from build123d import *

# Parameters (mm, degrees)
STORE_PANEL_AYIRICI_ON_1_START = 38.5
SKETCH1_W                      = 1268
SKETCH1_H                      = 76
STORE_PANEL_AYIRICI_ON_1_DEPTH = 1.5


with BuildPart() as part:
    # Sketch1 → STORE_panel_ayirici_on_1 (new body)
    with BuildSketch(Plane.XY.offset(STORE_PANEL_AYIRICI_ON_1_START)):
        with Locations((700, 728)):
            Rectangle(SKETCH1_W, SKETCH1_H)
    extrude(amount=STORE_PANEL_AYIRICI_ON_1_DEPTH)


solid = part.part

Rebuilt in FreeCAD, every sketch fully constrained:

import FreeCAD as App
import Part
import Sketcher

V = App.Vector
Q = App.Units.Quantity

doc = App.newDocument("Part")
body = doc.addObject("PartDesign::Body", "Body")

sketch1 = body.newObject("Sketcher::SketchObject", "Sketch")
sketch1.AttachmentSupport = (doc.getObject("XY_Plane"), [""])
sketch1.MapMode = "FlatFace"
sketch1.AttachmentOffset = App.Placement(V(0, 0, 38.5), App.Rotation())
sketch1.addGeometry([
    Part.LineSegment(V(66, 766, 0), V(66, 690, 0)),
    Part.LineSegment(V(66, 690, 0), V(1334, 690, 0)),
    Part.LineSegment(V(1334, 690, 0), V(1334, 766, 0)),
    Part.LineSegment(V(1334, 766, 0), V(66, 766, 0)),
], False)
sketch1.addConstraint([
    Sketcher.Constraint("Coincident", 0, 2, 1, 1),
    Sketcher.Constraint("Coincident", 1, 2, 2, 1),
    Sketcher.Constraint("Coincident", 2, 2, 3, 1),
    Sketcher.Constraint("Coincident", 3, 2, 0, 1),
    Sketcher.Constraint("Vertical", 0),
    Sketcher.Constraint("Horizontal", 1),
    Sketcher.Constraint("Vertical", 2),
    Sketcher.Constraint("Horizontal", 3),
    Sketcher.Constraint("DistanceX", 1, 1, 1, 2, Q("1268 mm")),
    Sketcher.Constraint("DistanceY", 0, 2, 0, 1, Q("76 mm")),
    Sketcher.Constraint("DistanceX", -1, 1, 0, 2, Q("66 mm")),
    Sketcher.Constraint("DistanceY", -1, 1, 0, 2, Q("690 mm")),
])
pad1 = body.newObject("PartDesign::Pad", "Pad")
pad1.Profile = sketch1
pad1.Length = 1.5

doc.recompute()
